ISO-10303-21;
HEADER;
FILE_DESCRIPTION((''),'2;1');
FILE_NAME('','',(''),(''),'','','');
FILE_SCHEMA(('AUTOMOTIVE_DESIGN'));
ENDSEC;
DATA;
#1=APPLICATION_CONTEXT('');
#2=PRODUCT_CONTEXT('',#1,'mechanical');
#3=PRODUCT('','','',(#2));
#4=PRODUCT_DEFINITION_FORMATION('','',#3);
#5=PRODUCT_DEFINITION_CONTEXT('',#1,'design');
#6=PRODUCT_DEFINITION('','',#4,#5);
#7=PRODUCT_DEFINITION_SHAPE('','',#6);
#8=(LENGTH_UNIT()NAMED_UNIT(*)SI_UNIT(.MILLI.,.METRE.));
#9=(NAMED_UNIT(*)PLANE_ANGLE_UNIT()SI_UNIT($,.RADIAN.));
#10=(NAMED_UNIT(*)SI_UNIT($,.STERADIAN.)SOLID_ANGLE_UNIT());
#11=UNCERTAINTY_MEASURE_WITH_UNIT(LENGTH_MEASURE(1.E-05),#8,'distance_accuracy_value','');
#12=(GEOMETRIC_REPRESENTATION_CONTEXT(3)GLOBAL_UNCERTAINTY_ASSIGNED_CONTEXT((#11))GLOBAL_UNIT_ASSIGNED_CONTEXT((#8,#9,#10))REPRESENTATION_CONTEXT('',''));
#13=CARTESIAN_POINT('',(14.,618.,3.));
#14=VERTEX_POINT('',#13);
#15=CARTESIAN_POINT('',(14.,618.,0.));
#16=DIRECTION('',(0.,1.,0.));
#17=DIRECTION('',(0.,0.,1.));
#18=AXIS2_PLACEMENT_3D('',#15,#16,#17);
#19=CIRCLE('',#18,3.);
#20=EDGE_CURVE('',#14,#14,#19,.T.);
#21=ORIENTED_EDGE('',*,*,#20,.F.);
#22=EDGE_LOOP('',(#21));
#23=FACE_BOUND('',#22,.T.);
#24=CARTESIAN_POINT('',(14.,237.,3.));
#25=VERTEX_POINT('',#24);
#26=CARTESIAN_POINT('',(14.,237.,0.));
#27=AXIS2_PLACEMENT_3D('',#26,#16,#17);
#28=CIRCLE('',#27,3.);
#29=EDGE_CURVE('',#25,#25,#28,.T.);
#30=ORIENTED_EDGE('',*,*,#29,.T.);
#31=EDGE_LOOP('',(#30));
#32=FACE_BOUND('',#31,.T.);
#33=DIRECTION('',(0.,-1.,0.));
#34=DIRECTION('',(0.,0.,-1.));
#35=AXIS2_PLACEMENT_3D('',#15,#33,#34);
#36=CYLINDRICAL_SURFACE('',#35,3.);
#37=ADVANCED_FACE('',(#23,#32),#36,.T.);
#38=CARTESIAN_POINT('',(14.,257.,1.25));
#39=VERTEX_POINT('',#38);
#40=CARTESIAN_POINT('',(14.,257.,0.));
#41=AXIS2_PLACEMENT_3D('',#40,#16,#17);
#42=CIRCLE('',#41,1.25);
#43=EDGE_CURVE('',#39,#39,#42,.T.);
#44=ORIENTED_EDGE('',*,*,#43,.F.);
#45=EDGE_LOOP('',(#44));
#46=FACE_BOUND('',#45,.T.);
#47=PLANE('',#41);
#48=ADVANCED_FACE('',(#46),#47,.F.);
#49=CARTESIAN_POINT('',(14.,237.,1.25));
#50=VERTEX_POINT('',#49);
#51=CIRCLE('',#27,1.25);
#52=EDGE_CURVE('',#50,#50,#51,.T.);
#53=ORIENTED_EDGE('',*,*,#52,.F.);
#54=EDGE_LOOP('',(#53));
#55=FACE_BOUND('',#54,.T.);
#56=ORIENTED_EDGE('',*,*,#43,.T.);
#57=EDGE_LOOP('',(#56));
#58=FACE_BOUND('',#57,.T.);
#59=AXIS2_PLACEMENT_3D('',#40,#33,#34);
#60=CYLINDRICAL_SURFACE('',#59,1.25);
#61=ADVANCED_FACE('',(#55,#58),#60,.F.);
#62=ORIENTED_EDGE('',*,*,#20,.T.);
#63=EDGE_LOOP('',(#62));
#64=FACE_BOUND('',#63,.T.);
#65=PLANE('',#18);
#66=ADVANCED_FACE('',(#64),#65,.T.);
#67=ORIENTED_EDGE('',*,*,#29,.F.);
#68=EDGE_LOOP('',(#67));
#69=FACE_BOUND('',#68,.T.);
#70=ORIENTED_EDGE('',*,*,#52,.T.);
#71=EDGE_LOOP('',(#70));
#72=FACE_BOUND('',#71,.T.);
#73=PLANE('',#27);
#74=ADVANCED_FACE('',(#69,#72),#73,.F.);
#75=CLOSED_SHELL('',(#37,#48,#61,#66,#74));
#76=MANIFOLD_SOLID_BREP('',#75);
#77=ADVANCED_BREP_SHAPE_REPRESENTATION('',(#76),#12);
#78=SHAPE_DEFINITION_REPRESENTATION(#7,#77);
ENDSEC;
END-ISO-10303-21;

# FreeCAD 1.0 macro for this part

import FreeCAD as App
import Part
import Sketcher
from FreeCAD import Vector

doc = App.newDocument("Part")
body = doc.addObject("PartDesign::Body", "Body")

# Sketch on XZ plane
sketch1 = doc.addObject("Sketcher::SketchObject", "Sketch")
body.addObject(sketch1)
sketch1.AttachmentSupport = (doc.XZ_Plane, [""])
sketch1.MapMode = "FlatFace"
sketch1.AttachmentOffset = App.Placement(Vector(0, 0, -237), App.Rotation())
sketch1.addGeometry(Part.Circle(Vector(14, 0, 0), Vector(0, 0, 1), 3), False)
sketch1.addConstraint(Sketcher.Constraint("PointOnObject", 0, 3, -1))
sketch1.addConstraint(Sketcher.Constraint("Diameter", 0, 6.0))
sketch1.addConstraint(Sketcher.Constraint("DistanceX", -1, 1, 0, 3, 14.0))
pad1 = doc.addObject("PartDesign::Pad", "Pad")
body.addObject(pad1)
pad1.Profile = sketch1
pad1.Length = 381
pad1.Reversed = True

# Sketch on XZ plane
sketch2 = doc.addObject("Sketcher::SketchObject", "Sketch001")
body.addObject(sketch2)
sketch2.AttachmentSupport = (doc.XZ_Plane, [""])
sketch2.MapMode = "FlatFace"
sketch2.AttachmentOffset = App.Placement(Vector(0, 0, -237), App.Rotation())
sketch2.addGeometry(Part.Circle(Vector(14, 0, 0), Vector(0, 0, 1), 1.2), False)
sketch2.addConstraint(Sketcher.Constraint("PointOnObject", 0, 3, -1))
sketch2.addConstraint(Sketcher.Constraint("Diameter", 0, 2.5))
sketch2.addConstraint(Sketcher.Constraint("DistanceX", -1, 1, 0, 3, 14.0))
pocket1 = doc.addObject("PartDesign::Pocket", "Pocket")
body.addObject(pocket1)
pocket1.Profile = sketch2
pocket1.Length = 20

doc.recompute()
